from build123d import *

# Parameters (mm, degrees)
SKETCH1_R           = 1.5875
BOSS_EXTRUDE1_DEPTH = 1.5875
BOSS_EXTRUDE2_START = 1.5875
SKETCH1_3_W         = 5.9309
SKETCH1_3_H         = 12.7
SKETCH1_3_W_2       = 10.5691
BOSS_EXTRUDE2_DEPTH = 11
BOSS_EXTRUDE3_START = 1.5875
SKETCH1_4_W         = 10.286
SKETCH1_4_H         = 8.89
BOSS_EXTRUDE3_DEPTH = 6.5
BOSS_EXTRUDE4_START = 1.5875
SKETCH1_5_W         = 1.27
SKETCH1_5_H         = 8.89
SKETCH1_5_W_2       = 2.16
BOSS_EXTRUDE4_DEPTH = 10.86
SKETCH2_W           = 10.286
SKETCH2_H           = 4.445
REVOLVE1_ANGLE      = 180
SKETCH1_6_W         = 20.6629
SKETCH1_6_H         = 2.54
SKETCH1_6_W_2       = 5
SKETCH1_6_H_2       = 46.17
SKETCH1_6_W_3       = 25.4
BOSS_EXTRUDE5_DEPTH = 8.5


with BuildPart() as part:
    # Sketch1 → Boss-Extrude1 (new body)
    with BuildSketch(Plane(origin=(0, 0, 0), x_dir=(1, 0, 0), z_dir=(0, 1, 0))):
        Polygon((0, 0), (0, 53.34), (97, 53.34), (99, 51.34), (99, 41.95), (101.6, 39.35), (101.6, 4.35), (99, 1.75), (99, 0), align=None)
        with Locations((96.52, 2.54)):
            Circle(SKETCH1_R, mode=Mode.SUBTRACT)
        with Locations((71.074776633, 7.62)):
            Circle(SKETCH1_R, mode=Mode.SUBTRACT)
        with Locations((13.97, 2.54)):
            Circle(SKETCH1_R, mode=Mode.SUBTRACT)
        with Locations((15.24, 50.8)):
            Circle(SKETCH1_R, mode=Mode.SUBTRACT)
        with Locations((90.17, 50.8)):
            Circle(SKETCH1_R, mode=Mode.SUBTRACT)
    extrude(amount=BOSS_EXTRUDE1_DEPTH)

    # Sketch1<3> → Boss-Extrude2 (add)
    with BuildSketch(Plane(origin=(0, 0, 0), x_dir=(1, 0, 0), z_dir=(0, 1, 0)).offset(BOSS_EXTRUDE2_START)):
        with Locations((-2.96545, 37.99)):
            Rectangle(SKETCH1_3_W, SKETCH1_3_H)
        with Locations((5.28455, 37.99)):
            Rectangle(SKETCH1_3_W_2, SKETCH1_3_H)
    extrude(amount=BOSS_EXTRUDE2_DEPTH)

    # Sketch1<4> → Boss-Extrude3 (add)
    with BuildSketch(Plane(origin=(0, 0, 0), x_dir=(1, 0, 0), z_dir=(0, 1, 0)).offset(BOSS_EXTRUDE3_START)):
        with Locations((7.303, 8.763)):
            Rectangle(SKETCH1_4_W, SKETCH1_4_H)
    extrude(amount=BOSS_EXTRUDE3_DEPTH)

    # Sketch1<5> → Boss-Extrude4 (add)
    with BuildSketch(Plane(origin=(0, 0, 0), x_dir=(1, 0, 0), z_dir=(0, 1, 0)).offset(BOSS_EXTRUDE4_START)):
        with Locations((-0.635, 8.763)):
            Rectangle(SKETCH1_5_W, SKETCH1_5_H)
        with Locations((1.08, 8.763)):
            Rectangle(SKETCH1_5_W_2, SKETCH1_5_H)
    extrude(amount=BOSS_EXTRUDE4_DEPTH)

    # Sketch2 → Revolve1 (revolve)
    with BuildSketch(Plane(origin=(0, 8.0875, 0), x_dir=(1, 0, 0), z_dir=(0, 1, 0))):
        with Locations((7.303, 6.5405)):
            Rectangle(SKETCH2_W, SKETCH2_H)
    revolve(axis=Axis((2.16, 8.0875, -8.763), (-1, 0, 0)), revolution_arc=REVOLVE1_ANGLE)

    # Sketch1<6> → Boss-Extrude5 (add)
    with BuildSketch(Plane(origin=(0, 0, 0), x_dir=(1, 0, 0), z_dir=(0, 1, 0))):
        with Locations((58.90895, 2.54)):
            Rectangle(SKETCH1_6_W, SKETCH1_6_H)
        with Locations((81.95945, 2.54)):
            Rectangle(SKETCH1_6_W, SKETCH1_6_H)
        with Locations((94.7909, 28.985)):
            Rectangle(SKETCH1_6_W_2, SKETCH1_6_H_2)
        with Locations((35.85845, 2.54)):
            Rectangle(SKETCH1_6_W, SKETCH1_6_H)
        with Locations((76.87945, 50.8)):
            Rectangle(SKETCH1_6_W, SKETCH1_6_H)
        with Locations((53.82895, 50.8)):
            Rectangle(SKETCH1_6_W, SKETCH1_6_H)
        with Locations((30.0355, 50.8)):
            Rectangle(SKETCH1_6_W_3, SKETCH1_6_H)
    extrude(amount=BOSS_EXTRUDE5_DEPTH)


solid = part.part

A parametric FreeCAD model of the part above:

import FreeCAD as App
import Part
import Sketcher
Q = App.Units.Quantity

doc = App.newDocument("Part")
params = doc.addObject("Spreadsheet::Sheet", "Params")
for row, (alias, value) in enumerate([
    ("sketch1_width", "99 mm"),
    ("sketch1_width2", "97 mm"),
    ("sketch1_height", "35 mm"),
    ("sketch1_height2", "53.34 mm"),
    ("sketch1_height3", "1.75 mm"),
    ("pad1_length", "1.5875 mm"),
    ("sketch2_width", "16.5 mm"),
    ("sketch2_height", "12.7 mm"),
    ("pad2_length", "11 mm"),
    ("sketch3_height", "8.89 mm"),
    ("pad3_length", "6.5 mm"),
    ("sketch4_width", "3.43 mm"),
    ("sketch4_height", "8.89 mm"),
    ("pad4_length", "10.86 mm"),
    ("revolution_angle", "180 deg"),
    ("sketch6_width", "5 mm"),
    ("sketch6_width2", "25.4 mm"),
    ("sketch6_height", "2.54 mm"),
    ("sketch6_height2", "46.17 mm"),
    ("pad5_length", "8.5 mm"),
], start=1):
    params.set(f"A{row}", alias)
    params.set(f"B{row}", "=" + value)
    params.setAlias(f"B{row}", alias)

body = doc.addObject("PartDesign::Body", "Body")

sketch1 = body.newObject("Sketcher::SketchObject", "Sketch")
sketch1.AttachmentSupport = (doc.getObject("XZ_Plane"), [""])
sketch1.MapMode = "FlatFace"
sketch1.addGeometry([
    Part.LineSegment(App.Vector(0, -53.34, 0), App.Vector(0, 0, 0)),
    Part.LineSegment(App.Vector(0, 0, 0), App.Vector(99, 0, 0)),
    Part.LineSegment(App.Vector(99, 0, 0), App.Vector(99, -1.75, 0)),
    Part.LineSegment(App.Vector(99, -1.75, 0), App.Vector(101.6, -4.35, 0)),
    Part.LineSegment(App.Vector(101.6, -4.35, 0), App.Vector(101.6, -39.35, 0)),
    Part.LineSegment(App.Vector(101.6, -39.35, 0), App.Vector(99, -41.95, 0)),
    Part.LineSegment(App.Vector(99, -41.95, 0), App.Vector(99, -51.34, 0)),
    Part.LineSegment(App.Vector(99, -51.34, 0), App.Vector(97, -53.34, 0)),
    Part.LineSegment(App.Vector(97, -53.34, 0), App.Vector(0, -53.34, 0)),
    Part.Circle(App.Vector(96.52, -2.54, 0), App.Vector(0, 0, 1), 1.5875),
    Part.Circle(App.Vector(71.074777, -7.62, 0), App.Vector(0, 0, 1), 1.5875),
    Part.Circle(App.Vector(13.97, -2.54, 0), App.Vector(0, 0, 1), 1.5875),
    Part.Circle(App.Vector(90.17, -50.8, 0), App.Vector(0, 0, 1), 1.5875),
    Part.Circle(App.Vector(15.24, -50.8, 0), App.Vector(0, 0, 1), 1.5875),
], False)
sketch1.addConstraint([
    Sketcher.Constraint("Coincident", 0, 2, 1, 1),
    Sketcher.Constraint("Coincident", 1, 2, 2, 1),
    Sketcher.Constraint("Coincident", 2, 2, 3, 1),
    Sketcher.Constraint("Coincident", 3, 2, 4, 1),
    Sketcher.Constraint("Coincident", 4, 2, 5, 1),
    Sketcher.Constraint("Coincident", 5, 2, 6, 1),
    Sketcher.Constraint("Coincident", 6, 2, 7, 1),
    Sketcher.Constraint("Coincident", 7, 2, 8, 1),
    Sketcher.Constraint("Coincident", 8, 2, 0, 1),
    Sketcher.Constraint("Vertical", 0),
    Sketcher.Constraint("Horizontal", 1),
    Sketcher.Constraint("Vertical", 2),
    Sketcher.Constraint("Vertical", 4),
    Sketcher.Constraint("Vertical", 6),
    Sketcher.Constraint("Horizontal", 8),
    Sketcher.Constraint("Coincident", 0, 2, -1, 1),
    Sketcher.Constraint("Equal", 9, 10),
    Sketcher.Constraint("Equal", 10, 11),
    Sketcher.Constraint("Equal", 11, 12),
    Sketcher.Constraint("Equal", 12, 13),
    Sketcher.Constraint("Perpendicular", 3, 5),
    Sketcher.Constraint("Parallel", 5, 7),
    Sketcher.Constraint("Horizontal", 9, 3, 11, 3),
    Sketcher.Constraint("Horizontal", 12, 3, 13, 3),
    Sketcher.Constraint("Vertical", 2, 2, 5, 2),
    Sketcher.Constraint("Equal", 3, 5),
    Sketcher.Constraint("DistanceX", 1, 1, 1, 2, Q("99 mm")),
    Sketcher.Constraint("DistanceX", 8, 2, 8, 1, Q("97 mm")),
    Sketcher.Constraint("DistanceY", 4, 2, 4, 1, Q("35 mm")),
    Sketcher.Constraint("Diameter", 9, Q("3.175 mm")),
    Sketcher.Constraint("DistanceY", 0, 1, 0, 2, Q("53.34 mm")),
    Sketcher.Constraint("DistanceY", 2, 2, 2, 1, Q("1.75 mm")),
    Sketcher.Constraint("DistanceY", 6, 2, 6, 1, Q("9.39 mm")),
    Sketcher.Constraint("DistanceY", 12, 3, -1, 1, Q("50.8 mm")),
    Sketcher.Constraint("DistanceX", 11, 3, 12, 3, Q("76.2 mm")),
    Sketcher.Constraint("DistanceY", 6, 2, 9, 3, Q("48.8 mm")),
    Sketcher.Constraint("DistanceX", -1, 1, 9, 3, Q("96.52 mm")),
    Sketcher.Constraint("DistanceY", 10, 3, -1, 1, Q("7.62 mm")),
    Sketcher.Constraint("DistanceX", -1, 1, 11, 3, Q("13.97 mm")),
    Sketcher.Constraint("DistanceX", -1, 1, 13, 3, Q("15.24 mm")),
    Sketcher.Constraint("DistanceX", -1, 1, 10, 3, Q("71.074777 mm")),
])
sketch1.setExpression("Constraints[26]", "Params.sketch1_width")
sketch1.setExpression("Constraints[27]", "Params.sketch1_width2")
sketch1.setExpression("Constraints[28]", "Params.sketch1_height")
sketch1.setExpression("Constraints[30]", "Params.sketch1_height2")
sketch1.setExpression("Constraints[31]", "Params.sketch1_height3")
pad1 = body.newObject("PartDesign::Pad", "Pad")
pad1.Profile = sketch1
pad1.setExpression("Length", "Params.pad1_length")
pad1.Reversed = True

sketch2 = body.newObject("Sketcher::SketchObject", "Sketch001")
sketch2.AttachmentSupport = (doc.getObject("XZ_Plane"), [""])
sketch2.MapMode = "FlatFace"
sketch2.AttachmentOffset = App.Placement(App.Vector(0, 0, -1.5875), App.Rotation())
sketch2.addGeometry([
    Part.LineSegment(App.Vector(-5.9309, -44.34, 0), App.Vector(-5.9309, -31.64, 0)),
    Part.LineSegment(App.Vector(-5.9309, -31.64, 0), App.Vector(10.5691, -31.64, 0)),
    Part.LineSegment(App.Vector(10.5691, -31.64, 0), App.Vector(10.5691, -44.34, 0)),
    Part.LineSegment(App.Vector(10.5691, -44.34, 0), App.Vector(-5.9309, -44.34, 0)),
], False)
sketch2.addConstraint([
    Sketcher.Constraint("Coincident", 0, 2, 1, 1),
    Sketcher.Constraint("Coincident", 1, 2, 2, 1),
    Sketcher.Constraint("Coincident", 2, 2, 3, 1),
    Sketcher.Constraint("Coincident", 3, 2, 0, 1),
    Sketcher.Constraint("Vertical", 0),
    Sketcher.Constraint("Horizontal", 1),
    Sketcher.Constraint("Vertical", 2),
    Sketcher.Constraint("Horizontal", 3),
    Sketcher.Constraint("DistanceX", 1, 1, 1, 2, Q("16.5 mm")),
    Sketcher.Constraint("DistanceY", 0, 1, 0, 2, Q("12.7 mm")),
    Sketcher.Constraint("DistanceY", 0, 2, -1, 1, Q("31.64 mm")),
    Sketcher.Constraint("DistanceX", 0, 2, -1, 1, Q("5.9309 mm")),
])
sketch2.setExpression("Constraints[8]", "Params.sketch2_width")
sketch2.setExpression("Constraints[9]", "Params.sketch2_height")
pad2 = body.newObject("PartDesign::Pad", "Pad001")
pad2.Profile = sketch2
pad2.setExpression("Length", "Params.pad2_length")
pad2.Reversed = True

sketch3 = body.newObject("Sketcher::SketchObject", "Sketch002")
sketch3.AttachmentSupport = (doc.getObject("XZ_Plane"), [""])
sketch3.MapMode = "FlatFace"
sketch3.AttachmentOffset = App.Placement(App.Vector(0, 0, -1.5875), App.Rotation())
sketch3.addGeometry([
    Part.LineSegment(App.Vector(2.16, -13.208, 0), App.Vector(2.16, -4.318, 0)),
    Part.LineSegment(App.Vector(2.16, -4.318, 0), App.Vector(12.446, -4.318, 0)),
    Part.LineSegment(App.Vector(12.446, -4.318, 0), App.Vector(12.446, -13.208, 0)),
    Part.LineSegment(App.Vector(12.446, -13.208, 0), App.Vector(2.16, -13.208, 0)),
], False)
sketch3.addConstraint([
    Sketcher.Constraint("Coincident", 0, 2, 1, 1),
    Sketcher.Constraint("Coincident", 1, 2, 2, 1),
    Sketcher.Constraint("Coincident", 2, 2, 3, 1),
    Sketcher.Constraint("Coincident", 3, 2, 0, 1),
    Sketcher.Constraint("Vertical", 0),
    Sketcher.Constraint("Horizontal", 1),
    Sketcher.Constraint("Vertical", 2),
    Sketcher.Constraint("Horizontal", 3),
    Sketcher.Constraint("DistanceY", 0, 1, 0, 2, Q("8.89 mm")),
    Sketcher.Constraint("DistanceX", 1, 1, 1, 2, Q("10.286 mm")),
    Sketcher.Constraint("DistanceX", -1, 1, 0, 2, Q("2.16 mm")),
    Sketcher.Constraint("DistanceY", 0, 2, -1, 1, Q("4.318 mm")),
])
sketch3.setExpression("Constraints[8]", "Params.sketch3_height")
pad3 = body.newObject("PartDesign::Pad", "Pad002")
pad3.Profile = sketch3
pad3.setExpression("Length", "Params.pad3_length")
pad3.Reversed = True

sketch4 = body.newObject("Sketcher::SketchObject", "Sketch003")
sketch4.AttachmentSupport = (doc.getObject("XZ_Plane"), [""])
sketch4.MapMode = "FlatFace"
sketch4.AttachmentOffset = App.Placement(App.Vector(0, 0, -1.5875), App.Rotation())
sketch4.addGeometry([
    Part.LineSegment(App.Vector(-1.27, -13.208, 0), App.Vector(-1.27, -4.318, 0)),
    Part.LineSegment(App.Vector(-1.27, -4.318, 0), App.Vector(2.16, -4.318, 0)),
    Part.LineSegment(App.Vector(2.16, -4.318, 0), App.Vector(2.16, -13.208, 0)),
    Part.LineSegment(App.Vector(2.16, -13.208, 0), App.Vector(-1.27, -13.208, 0)),
], False)
sketch4.addConstraint([
    Sketcher.Constraint("Coincident", 0, 2, 1, 1),
    Sketcher.Constraint("Coincident", 1, 2, 2, 1),
    Sketcher.Constraint("Coincident", 2, 2, 3, 1),
    Sketcher.Constraint("Coincident", 3, 2, 0, 1),
    Sketcher.Constraint("Vertical", 0),
    Sketcher.Constraint("Horizontal", 1),
    Sketcher.Constraint("Vertical", 2),
    Sketcher.Constraint("Horizontal", 3),
    Sketcher.Constraint("DistanceX", 1, 1, 1, 2, Q("3.43 mm")),
    Sketcher.Constraint("DistanceY", 0, 1, 0, 2, Q("8.89 mm")),
    Sketcher.Constraint("DistanceX", 0, 2, -1, 1, Q("1.27 mm")),
    Sketcher.Constraint("DistanceY", 0, 2, -1, 1, Q("4.318 mm")),
])
sketch4.setExpression("Constraints[8]", "Params.sketch4_width")
sketch4.setExpression("Constraints[9]", "Params.sketch4_height")
pad4 = body.newObject("PartDesign::Pad", "Pad003")
pad4.Profile = sketch4
pad4.setExpression("Length", "Params.pad4_length")
pad4.Reversed = True

sketch5 = body.newObject("Sketcher::SketchObject", "Sketch004")
sketch5.AttachmentSupport = (doc.getObject("XZ_Plane"), [""])
sketch5.MapMode = "FlatFace"
sketch5.AttachmentOffset = App.Placement(App.Vector(0, 0, -8.0875), App.Rotation())
sketch5.addGeometry([
    Part.LineSegment(App.Vector(2.16, -8.763, 0), App.Vector(2.16, -4.318, 0)),
    Part.LineSegment(App.Vector(2.16, -4.318, 0), App.Vector(12.446, -4.318, 0)),
    Part.LineSegment(App.Vector(12.446, -4.318, 0), App.Vector(12.446, -8.763, 0)),
    Part.LineSegment(App.Vector(12.446, -8.763, 0), App.Vector(2.16, -8.763, 0)),
], False)
sketch5.addGeometry(Part.LineSegment(App.Vector(12.446, -8.763, 0), App.Vector(2.16, -8.763, 0)), True)
sketch5.addConstraint([
    Sketcher.Constraint("Coincident", 0, 2, 1, 1),
    Sketcher.Constraint("Coincident", 1, 2, 2, 1),
    Sketcher.Constraint("Coincident", 2, 2, 3, 1),
    Sketcher.Constraint("Coincident", 3, 2, 0, 1),
    Sketcher.Constraint("Vertical", 0),
    Sketcher.Constraint("Horizontal", 1),
    Sketcher.Constraint("Vertical", 2),
    Sketcher.Constraint("Horizontal", 3),
    Sketcher.Constraint("Horizontal", 4),
    Sketcher.Constraint("Coincident", 4, 1, 2, 2),
    Sketcher.Constraint("Vertical", 0, 2, 4, 2),
    Sketcher.Constraint("DistanceX", 1, 1, 1, 2, Q("10.286 mm")),
    Sketcher.Constraint("DistanceY", 0, 1, 0, 2, Q("4.445 mm")),
    Sketcher.Constraint("DistanceX", -1, 1, 0, 2, Q("2.16 mm")),
    Sketcher.Constraint("DistanceY", 0, 2, -1, 1, Q("4.318 mm")),
])
revolution = body.newObject("PartDesign::Revolution", "Revolution")
revolution.Profile = sketch5
revolution.ReferenceAxis = (sketch5, ["Axis0"])
revolution.setExpression("Angle", "Params.revolution_angle")

sketch6 = body.newObject("Sketcher::SketchObject", "Sketch005")
sketch6.AttachmentSupport = (doc.getObject("XZ_Plane"), [""])
sketch6.MapMode = "FlatFace"
sketch6.addGeometry([
    Part.LineSegment(App.Vector(48.5775, -3.81, 0), App.Vector(48.5775, -1.27, 0)),
    Part.LineSegment(App.Vector(48.5775, -1.27, 0), App.Vector(69.2404, -1.27, 0)),
    Part.LineSegment(App.Vector(69.2404, -1.27, 0), App.Vector(69.2404, -3.81, 0)),
    Part.LineSegment(App.Vector(69.2404, -3.81, 0), App.Vector(48.5775, -3.81, 0)),
    Part.LineSegment(App.Vector(71.628, -3.81, 0), App.Vector(71.628, -1.27, 0)),
    Part.LineSegment(App.Vector(71.628, -1.27, 0), App.Vector(92.2909, -1.27, 0)),
    Part.LineSegment(App.Vector(92.2909, -1.27, 0), App.Vector(92.2909, -3.81, 0)),
    Part.LineSegment(App.Vector(92.2909, -3.81, 0), App.Vector(71.628, -3.81, 0)),
    Part.LineSegment(App.Vector(92.2909, -52.07, 0), App.Vector(92.2909, -5.9, 0)),
    Part.LineSegment(App.Vector(92.2909, -5.9, 0), App.Vector(97.2909, -5.9, 0)),
    Part.LineSegment(App.Vector(97.2909, -5.9, 0), App.Vector(97.2909, -52.07, 0)),
    Part.LineSegment(App.Vector(97.2909, -52.07, 0), App.Vector(92.2909, -52.07, 0)),
    Part.LineSegment(App.Vector(25.527, -3.81, 0), App.Vector(25.527, -1.27, 0)),
    Part.LineSegment(App.Vector(25.527, -1.27, 0), App.Vector(46.1899, -1.27, 0)),
    Part.LineSegment(App.Vector(46.1899, -1.27, 0), App.Vector(46.1899, -3.81, 0)),
    Part.LineSegment(App.Vector(46.1899, -3.81, 0), App.Vector(25.527, -3.81, 0)),
    Part.LineSegment(App.Vector(66.548, -52.07, 0), App.Vector(66.548, -49.53, 0)),
    Part.LineSegment(App.Vector(66.548, -49.53, 0), App.Vector(87.2109, -49.53, 0)),
    Part.LineSegment(App.Vector(87.2109, -49.53, 0), App.Vector(87.2109, -52.07, 0)),
    Part.LineSegment(App.Vector(87.2109, -52.07, 0), App.Vector(66.548, -52.07, 0)),
    Part.LineSegment(App.Vector(43.4975, -52.07, 0), App.Vector(43.4975, -49.53, 0)),
    Part.LineSegment(App.Vector(43.4975, -49.53, 0), App.Vector(64.1604, -49.53, 0)),
    Part.LineSegment(App.Vector(64.1604, -49.53, 0), App.Vector(64.1604, -52.07, 0)),
    Part.LineSegment(App.Vector(64.1604, -52.07, 0), App.Vector(43.4975, -52.07, 0)),
    Part.LineSegment(App.Vector(17.3355, -52.07, 0), App.Vector(17.3355, -49.53, 0)),
    Part.LineSegment(App.Vector(17.3355, -49.53, 0), App.Vector(42.7355, -49.53, 0)),
    Part.LineSegment(App.Vector(42.7355, -49.53, 0), App.Vector(42.7355, -52.07, 0)),
    Part.LineSegment(App.Vector(42.7355, -52.07, 0), App.Vector(17.3355, -52.07, 0)),
], False)
sketch6.addConstraint([
    Sketcher.Constraint("Coincident", 0, 2, 1, 1),
    Sketcher.Constraint("Coincident", 1, 2, 2, 1),
    Sketcher.Constraint("Coincident", 2, 2, 3, 1),
    Sketcher.Constraint("Coincident", 3, 2, 0, 1),
    Sketcher.Constraint("Coincident", 4, 2, 5, 1),
    Sketcher.Constraint("Coincident", 5, 2, 6, 1),
    Sketcher.Constraint("Coincident", 6, 2, 7, 1),
    Sketcher.Constraint("Coincident", 7, 2, 4, 1),
    Sketcher.Constraint("Coincident", 8, 2, 9, 1),
    Sketcher.Constraint("Coincident", 9, 2, 10, 1),
    Sketcher.Constraint("Coincident", 10, 2, 11, 1),
    Sketcher.Constraint("Coincident", 11, 2, 8, 1),
    Sketcher.Constraint("Coincident", 12, 2, 13, 1),
    Sketcher.Constraint("Coincident", 13, 2, 14, 1),
    Sketcher.Constraint("Coincident", 14, 2, 15, 1),
    Sketcher.Constraint("Coincident", 15, 2, 12, 1),
    Sketcher.Constraint("Coincident", 16, 2, 17, 1),
    Sketcher.Constraint("Coincident", 17, 2, 18, 1),
    Sketcher.Constraint("Coincident", 18, 2, 19, 1),
    Sketcher.Constraint("Coincident", 19, 2, 16, 1),
    Sketcher.Constraint("Coincident", 20, 2, 21, 1),
    Sketcher.Constraint("Coincident", 21, 2, 22, 1),
    Sketcher.Constraint("Coincident", 22, 2, 23, 1),
    Sketcher.Constraint("Coincident", 23, 2, 20, 1),
    Sketcher.Constraint("Coincident", 24, 2, 25, 1),
    Sketcher.Constraint("Coincident", 25, 2, 26, 1),
    Sketcher.Constraint("Coincident", 26, 2, 27, 1),
    Sketcher.Constraint("Coincident", 27, 2, 24, 1),
    Sketcher.Constraint("Vertical", 0),
    Sketcher.Constraint("Horizontal", 1),
    Sketcher.Constraint("Vertical", 2),
    Sketcher.Constraint("Horizontal", 3),
    Sketcher.Constraint("Vertical", 4),
    Sketcher.Constraint("Horizontal", 5),
    Sketcher.Constraint("Vertical", 6),
    Sketcher.Constraint("Horizontal", 7),
    Sketcher.Constraint("Vertical", 8),
    Sketcher.Constraint("Horizontal", 9),
    Sketcher.Constraint("Vertical", 10),
    Sketcher.Constraint("Horizontal", 11),
    Sketcher.Constraint("Vertical", 12),
    Sketcher.Constraint("Horizontal", 13),
    Sketcher.Constraint("Vertical", 14),
    Sketcher.Constraint("Horizontal", 15),
    Sketcher.Constraint("Vertical", 16),
    Sketcher.Constraint("Horizontal", 17),
    Sketcher.Constraint("Vertical", 18),
    Sketcher.Constraint("Horizontal", 19),
    Sketcher.Constraint("Vertical", 20),
    Sketcher.Constraint("Horizontal", 21),
    Sketcher.Constraint("Vertical", 22),
    Sketcher.Constraint("Horizontal", 23),
    Sketcher.Constraint("Vertical", 24),
    Sketcher.Constraint("Horizontal", 25),
    Sketcher.Constraint("Vertical", 26),
    Sketcher.Constraint("Horizontal", 27),
    Sketcher.Constraint("Horizontal", 1, 2, 4, 2),
    Sketcher.Constraint("Horizontal", 3, 2, 6, 2),
    Sketcher.Constraint("Horizontal", 5, 2, 12, 2),
    Sketcher.Constraint("Horizontal", 7, 2, 14, 2),
    Sketcher.Constraint("Horizontal", 11, 2, 18, 2),
    Sketcher.Constraint("Horizontal", 17, 2, 20, 2),
    Sketcher.Constraint("Horizontal", 19, 2, 22, 2),
    Sketcher.Constraint("Horizontal", 21, 2, 24, 2),
    Sketcher.Constraint("Horizontal", 23, 2, 26, 2),
    Sketcher.Constraint("Vertical", 6, 2, 8, 2),
    Sketcher.Constraint("Equal", 3, 5),
    Sketcher.Constraint("Equal", 7, 13),
    Sketcher.Constraint("Equal", 15, 17),
    Sketcher.Constraint("Equal", 19, 21),
    Sketcher.Constraint("Equal", 14, 16),
    Sketcher.Constraint("DistanceX", 9, 1, 9, 2, Q("5 mm")),
    Sketcher.Constraint("DistanceX", 25, 1, 25, 2, Q("25.4 mm")),
    Sketcher.Constraint("DistanceY", 0, 1, 0, 2, Q("2.54 mm")),
    Sketcher.Constraint("DistanceY", 8, 1, 8, 2, Q("46.17 mm")),
    Sketcher.Constraint("DistanceY", 8, 2, -1, 1, Q("5.9 mm")),
    Sketcher.Constraint("DistanceY", 10, 2, 5, 2, Q("50.8 mm")),
    Sketcher.Constraint("DistanceX", 16, 2, 7, 2, Q("5.08 mm")),
    Sketcher.Constraint("DistanceX", 1, 1, 1, 2, Q("20.6629 mm")),
    Sketcher.Constraint("DistanceX", -1, 1, 4, 2, Q("71.628 mm")),
    Sketcher.Constraint("DistanceX", -1, 1, 12, 2, Q("25.527 mm")),
    Sketcher.Constraint("DistanceX", 24, 2, 20, 2, Q("26.162 mm")),
    Sketcher.Constraint("DistanceX", -1, 1, 0, 2, Q("48.5775 mm")),
    Sketcher.Constraint("DistanceX", -1, 1, 20, 2, Q("43.4975 mm")),
])
sketch6.setExpression("Constraints[71]", "Params.sketch6_width")
sketch6.setExpression("Constraints[72]", "Params.sketch6_width2")
sketch6.setExpression("Constraints[73]", "Params.sketch6_height")
sketch6.setExpression("Constraints[74]", "Params.sketch6_height2")
pad5 = body.newObject("PartDesign::Pad", "Pad004")
pad5.Profile = sketch6
pad5.setExpression("Length", "Params.pad5_length")
pad5.Reversed = True

doc.recompute()
